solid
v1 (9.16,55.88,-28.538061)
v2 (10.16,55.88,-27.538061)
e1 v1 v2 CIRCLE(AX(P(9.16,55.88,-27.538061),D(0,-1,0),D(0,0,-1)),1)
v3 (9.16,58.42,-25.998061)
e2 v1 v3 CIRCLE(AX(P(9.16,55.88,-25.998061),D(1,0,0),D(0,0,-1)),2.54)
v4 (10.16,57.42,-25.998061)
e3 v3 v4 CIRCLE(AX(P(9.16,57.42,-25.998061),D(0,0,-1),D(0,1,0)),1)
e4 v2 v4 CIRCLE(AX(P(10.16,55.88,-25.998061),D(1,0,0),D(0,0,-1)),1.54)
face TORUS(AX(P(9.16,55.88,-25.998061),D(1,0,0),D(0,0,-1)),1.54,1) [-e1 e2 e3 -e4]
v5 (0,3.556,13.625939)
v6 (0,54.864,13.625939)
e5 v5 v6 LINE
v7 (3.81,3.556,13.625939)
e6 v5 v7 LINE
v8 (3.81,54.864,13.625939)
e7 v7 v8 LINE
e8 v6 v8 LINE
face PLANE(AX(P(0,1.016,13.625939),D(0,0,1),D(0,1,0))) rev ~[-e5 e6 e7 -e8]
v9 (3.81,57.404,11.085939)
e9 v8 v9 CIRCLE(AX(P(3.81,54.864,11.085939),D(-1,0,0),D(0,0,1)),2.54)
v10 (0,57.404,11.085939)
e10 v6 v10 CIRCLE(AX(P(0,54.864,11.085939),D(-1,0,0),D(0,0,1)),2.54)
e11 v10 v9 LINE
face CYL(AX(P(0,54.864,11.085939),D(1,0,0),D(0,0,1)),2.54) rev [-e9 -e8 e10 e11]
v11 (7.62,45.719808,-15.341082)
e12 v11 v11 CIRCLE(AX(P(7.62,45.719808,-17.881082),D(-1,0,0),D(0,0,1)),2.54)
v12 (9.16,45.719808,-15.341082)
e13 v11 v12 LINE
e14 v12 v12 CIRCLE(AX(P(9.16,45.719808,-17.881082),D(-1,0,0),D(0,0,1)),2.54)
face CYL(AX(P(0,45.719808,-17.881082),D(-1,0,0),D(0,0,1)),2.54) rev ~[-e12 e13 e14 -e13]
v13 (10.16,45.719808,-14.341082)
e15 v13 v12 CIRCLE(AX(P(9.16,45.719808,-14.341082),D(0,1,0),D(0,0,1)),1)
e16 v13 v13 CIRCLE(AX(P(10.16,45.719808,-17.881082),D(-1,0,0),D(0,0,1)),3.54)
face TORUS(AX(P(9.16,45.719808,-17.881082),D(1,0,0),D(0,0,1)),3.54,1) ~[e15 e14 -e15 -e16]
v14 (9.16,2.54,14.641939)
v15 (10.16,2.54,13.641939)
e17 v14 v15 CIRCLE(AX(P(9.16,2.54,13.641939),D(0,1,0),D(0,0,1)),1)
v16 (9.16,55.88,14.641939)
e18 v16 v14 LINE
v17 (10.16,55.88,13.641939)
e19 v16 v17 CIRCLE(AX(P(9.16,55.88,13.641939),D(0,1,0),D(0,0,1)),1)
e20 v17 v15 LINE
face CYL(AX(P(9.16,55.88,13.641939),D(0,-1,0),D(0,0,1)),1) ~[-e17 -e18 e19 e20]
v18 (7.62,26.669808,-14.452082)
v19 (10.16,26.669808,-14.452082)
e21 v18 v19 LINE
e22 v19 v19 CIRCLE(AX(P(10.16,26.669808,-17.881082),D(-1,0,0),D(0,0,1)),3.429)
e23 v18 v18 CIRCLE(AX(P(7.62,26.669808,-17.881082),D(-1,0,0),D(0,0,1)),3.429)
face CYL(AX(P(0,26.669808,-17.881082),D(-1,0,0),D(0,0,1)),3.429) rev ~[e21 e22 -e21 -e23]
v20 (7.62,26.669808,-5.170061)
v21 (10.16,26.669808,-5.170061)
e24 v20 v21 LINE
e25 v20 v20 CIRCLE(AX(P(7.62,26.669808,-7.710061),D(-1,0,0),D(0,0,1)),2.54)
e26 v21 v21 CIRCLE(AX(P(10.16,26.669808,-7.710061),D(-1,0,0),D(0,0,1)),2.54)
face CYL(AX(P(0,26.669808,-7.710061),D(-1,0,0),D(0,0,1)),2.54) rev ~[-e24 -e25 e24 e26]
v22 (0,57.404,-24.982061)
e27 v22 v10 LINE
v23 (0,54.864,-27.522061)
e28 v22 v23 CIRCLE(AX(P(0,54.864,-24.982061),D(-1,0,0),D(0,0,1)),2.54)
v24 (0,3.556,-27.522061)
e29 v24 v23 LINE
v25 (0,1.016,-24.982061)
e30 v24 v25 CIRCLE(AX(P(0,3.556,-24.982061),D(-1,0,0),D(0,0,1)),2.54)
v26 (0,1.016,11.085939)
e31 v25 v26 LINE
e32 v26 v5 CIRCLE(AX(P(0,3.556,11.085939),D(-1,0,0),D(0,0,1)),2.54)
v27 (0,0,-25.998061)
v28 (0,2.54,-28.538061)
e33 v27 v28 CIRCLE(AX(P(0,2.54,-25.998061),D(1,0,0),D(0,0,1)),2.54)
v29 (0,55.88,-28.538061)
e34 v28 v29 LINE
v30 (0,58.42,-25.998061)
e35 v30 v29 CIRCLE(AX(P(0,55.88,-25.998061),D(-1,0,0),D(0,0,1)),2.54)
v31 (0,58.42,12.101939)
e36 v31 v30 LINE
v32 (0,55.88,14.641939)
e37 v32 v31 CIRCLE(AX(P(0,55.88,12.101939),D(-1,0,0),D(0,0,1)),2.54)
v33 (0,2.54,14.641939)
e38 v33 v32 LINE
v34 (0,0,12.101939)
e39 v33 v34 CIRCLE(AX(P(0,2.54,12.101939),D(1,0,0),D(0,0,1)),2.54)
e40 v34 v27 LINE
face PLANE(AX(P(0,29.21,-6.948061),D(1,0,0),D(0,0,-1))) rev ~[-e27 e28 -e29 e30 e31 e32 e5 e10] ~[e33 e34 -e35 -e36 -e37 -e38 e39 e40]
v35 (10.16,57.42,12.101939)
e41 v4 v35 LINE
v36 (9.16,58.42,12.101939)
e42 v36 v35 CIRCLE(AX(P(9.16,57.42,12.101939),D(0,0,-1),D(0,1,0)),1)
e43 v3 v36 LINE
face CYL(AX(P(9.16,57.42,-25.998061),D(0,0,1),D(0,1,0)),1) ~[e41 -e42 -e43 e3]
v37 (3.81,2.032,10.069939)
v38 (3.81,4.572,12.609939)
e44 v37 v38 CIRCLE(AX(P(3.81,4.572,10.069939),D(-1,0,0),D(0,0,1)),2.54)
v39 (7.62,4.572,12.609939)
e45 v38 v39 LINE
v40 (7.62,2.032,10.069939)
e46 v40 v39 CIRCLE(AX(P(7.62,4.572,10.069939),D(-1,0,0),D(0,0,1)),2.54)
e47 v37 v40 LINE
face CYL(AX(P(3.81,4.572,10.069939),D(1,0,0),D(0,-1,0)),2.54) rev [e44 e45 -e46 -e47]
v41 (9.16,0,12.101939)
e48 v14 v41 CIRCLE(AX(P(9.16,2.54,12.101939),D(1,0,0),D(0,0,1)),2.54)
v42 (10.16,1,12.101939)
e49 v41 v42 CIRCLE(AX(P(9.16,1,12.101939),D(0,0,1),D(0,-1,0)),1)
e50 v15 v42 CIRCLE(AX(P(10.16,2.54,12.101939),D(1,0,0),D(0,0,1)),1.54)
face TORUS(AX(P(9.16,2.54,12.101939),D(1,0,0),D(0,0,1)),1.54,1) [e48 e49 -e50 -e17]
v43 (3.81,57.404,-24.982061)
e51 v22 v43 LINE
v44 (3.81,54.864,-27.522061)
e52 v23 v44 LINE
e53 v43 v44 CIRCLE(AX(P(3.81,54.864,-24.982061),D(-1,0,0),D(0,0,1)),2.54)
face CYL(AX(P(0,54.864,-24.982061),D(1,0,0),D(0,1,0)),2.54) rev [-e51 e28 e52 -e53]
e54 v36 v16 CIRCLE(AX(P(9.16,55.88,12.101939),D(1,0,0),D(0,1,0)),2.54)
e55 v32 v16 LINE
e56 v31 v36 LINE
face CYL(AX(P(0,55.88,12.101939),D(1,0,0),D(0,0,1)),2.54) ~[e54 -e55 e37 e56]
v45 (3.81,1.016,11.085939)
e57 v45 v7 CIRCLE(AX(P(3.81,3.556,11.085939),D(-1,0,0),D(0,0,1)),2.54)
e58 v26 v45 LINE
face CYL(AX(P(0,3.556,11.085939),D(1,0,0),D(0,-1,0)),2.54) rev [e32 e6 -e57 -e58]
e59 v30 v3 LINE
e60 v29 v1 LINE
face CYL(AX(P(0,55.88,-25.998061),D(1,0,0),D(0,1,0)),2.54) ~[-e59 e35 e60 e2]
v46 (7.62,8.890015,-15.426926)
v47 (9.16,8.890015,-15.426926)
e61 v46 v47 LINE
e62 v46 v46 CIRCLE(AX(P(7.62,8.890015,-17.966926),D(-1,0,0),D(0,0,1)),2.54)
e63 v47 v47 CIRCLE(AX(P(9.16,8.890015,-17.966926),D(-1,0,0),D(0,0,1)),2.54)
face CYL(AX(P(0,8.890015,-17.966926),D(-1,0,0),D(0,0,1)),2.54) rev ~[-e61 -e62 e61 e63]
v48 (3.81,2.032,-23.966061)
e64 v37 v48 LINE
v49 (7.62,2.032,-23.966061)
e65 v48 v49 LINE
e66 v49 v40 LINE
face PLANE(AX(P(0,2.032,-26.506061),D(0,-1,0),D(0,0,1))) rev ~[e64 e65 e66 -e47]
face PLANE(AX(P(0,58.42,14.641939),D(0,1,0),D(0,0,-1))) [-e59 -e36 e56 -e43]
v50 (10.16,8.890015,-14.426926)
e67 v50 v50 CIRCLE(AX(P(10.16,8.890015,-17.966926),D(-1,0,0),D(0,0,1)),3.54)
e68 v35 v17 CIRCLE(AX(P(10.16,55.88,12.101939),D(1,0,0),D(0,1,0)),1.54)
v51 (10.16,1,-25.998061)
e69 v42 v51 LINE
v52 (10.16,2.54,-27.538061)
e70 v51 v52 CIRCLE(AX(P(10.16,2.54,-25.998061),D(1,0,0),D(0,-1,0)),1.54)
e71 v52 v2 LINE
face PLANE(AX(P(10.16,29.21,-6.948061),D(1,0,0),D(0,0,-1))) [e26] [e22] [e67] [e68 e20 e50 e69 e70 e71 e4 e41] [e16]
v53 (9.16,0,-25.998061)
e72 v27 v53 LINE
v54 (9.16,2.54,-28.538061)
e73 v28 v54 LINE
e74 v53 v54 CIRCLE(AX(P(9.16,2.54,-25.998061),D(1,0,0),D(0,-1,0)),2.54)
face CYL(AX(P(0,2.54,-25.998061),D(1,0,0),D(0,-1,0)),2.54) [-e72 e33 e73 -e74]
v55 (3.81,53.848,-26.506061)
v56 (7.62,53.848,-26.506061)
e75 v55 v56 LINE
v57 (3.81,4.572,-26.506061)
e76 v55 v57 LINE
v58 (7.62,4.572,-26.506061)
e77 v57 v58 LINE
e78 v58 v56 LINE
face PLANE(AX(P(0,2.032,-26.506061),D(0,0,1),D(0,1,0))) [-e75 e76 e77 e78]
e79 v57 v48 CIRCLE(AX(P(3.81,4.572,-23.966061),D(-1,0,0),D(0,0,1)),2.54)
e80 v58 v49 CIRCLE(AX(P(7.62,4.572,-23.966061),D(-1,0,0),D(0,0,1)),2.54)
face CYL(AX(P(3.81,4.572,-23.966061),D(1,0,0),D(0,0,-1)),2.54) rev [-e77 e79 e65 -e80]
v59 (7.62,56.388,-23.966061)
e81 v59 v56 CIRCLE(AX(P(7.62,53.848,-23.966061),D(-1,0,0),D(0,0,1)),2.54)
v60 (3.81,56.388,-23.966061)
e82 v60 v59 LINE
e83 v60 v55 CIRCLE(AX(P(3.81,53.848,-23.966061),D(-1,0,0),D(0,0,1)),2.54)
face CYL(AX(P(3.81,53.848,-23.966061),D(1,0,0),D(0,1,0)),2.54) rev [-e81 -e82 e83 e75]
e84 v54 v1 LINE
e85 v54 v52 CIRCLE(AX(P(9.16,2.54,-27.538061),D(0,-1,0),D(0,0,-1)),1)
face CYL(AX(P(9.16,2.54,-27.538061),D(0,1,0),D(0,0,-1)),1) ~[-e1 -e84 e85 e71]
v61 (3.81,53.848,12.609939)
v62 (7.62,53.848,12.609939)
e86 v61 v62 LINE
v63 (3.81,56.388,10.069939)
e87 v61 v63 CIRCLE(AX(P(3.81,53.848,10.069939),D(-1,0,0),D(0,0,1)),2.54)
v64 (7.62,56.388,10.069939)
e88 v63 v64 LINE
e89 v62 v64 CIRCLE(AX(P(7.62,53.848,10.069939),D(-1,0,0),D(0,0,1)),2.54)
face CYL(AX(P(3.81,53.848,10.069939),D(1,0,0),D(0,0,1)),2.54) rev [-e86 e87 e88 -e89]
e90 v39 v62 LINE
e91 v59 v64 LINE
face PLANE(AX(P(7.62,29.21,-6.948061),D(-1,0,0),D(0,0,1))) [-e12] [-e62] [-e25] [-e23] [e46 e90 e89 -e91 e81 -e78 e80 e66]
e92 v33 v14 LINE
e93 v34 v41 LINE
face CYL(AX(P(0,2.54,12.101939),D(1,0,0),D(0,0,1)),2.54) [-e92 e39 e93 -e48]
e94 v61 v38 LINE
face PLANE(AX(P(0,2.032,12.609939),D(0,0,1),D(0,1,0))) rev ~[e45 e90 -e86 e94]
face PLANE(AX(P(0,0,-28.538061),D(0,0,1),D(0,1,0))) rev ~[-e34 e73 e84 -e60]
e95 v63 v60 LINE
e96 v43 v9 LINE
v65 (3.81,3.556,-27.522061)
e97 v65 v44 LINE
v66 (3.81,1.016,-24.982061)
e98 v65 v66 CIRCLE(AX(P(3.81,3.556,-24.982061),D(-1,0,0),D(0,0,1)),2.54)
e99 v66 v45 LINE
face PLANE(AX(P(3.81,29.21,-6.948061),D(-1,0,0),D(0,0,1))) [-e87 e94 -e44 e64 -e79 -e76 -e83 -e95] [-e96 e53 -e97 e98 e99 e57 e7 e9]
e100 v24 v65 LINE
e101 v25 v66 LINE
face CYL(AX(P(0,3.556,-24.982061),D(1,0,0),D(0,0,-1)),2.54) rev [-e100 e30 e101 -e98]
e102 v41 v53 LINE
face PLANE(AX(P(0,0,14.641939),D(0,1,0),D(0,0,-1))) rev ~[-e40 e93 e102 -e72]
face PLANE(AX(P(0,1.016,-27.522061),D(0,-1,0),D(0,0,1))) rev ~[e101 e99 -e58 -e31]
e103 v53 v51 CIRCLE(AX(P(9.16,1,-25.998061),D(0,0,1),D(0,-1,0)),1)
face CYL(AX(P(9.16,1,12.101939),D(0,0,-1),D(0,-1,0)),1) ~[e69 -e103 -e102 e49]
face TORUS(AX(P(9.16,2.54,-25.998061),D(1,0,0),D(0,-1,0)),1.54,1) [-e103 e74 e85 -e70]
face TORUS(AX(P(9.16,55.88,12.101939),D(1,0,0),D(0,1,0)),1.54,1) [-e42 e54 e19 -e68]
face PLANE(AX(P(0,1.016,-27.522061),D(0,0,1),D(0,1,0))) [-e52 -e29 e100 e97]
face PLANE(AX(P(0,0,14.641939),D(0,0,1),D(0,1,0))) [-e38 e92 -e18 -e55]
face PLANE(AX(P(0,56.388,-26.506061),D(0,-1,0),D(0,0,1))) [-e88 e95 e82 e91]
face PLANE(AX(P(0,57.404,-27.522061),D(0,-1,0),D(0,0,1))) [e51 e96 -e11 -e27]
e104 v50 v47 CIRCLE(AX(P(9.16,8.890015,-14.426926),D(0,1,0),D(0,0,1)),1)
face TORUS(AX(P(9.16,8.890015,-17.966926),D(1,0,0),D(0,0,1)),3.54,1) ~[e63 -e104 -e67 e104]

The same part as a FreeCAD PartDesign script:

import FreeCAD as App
import Part
import Sketcher
from FreeCAD import Vector
Q = App.Units.Quantity


def edges_at(feature, points):
    """Names of the edges that pass closest to the given points."""
    edges = feature.Shape.Edges
    near = lambda p: min(range(len(edges)), key=lambda i: edges[i].distToShape(Part.Vertex(*p))[0])
    return sorted({f"Edge{near(p) + 1}" for p in points})


def add_polygon(sketch, points):
    """Adds a closed chain of lines whose ends are joined by coincident constraints."""
    first, n = sketch.GeometryCount, len(points)
    for a, b in zip(points, points[1:] + points[:1]):
        sketch.addGeometry(Part.LineSegment(App.Vector(*a, 0), App.Vector(*b, 0)), False)
    for i in range(n):
        sketch.addConstraint(Sketcher.Constraint("Coincident", first + i, 2, first + (i + 1) % n, 1))

doc = App.newDocument("Part")
body = doc.addObject("PartDesign::Body", "Body")

# Sketch on YZ plane
sketch1 = body.newObject("Sketcher::SketchObject", "Sketch")
sketch1.AttachmentSupport = (doc.getObject("YZ_Plane"), [""])
sketch1.MapMode = "FlatFace"
add_polygon(sketch1, [(58, 15), (0, 15), (0, -29), (58, -29)])  # lines 0-3
sketch1.addConstraint([
    Sketcher.Constraint("Horizontal", 0),
    Sketcher.Constraint("Vertical", 1),
    Sketcher.Constraint("Horizontal", 2),
    Sketcher.Constraint("Vertical", 3),
    Sketcher.Constraint("PointOnObject", 0, 2, -2),
    Sketcher.Constraint("DistanceX", 0, 2, 0, 1, Q("2.3 in")),
    Sketcher.Constraint("DistanceY", 1, 2, 1, 1, Q("1.7 in")),
    Sketcher.Constraint("DistanceY", -1, 1, 0, 2, 14.641939),
])
pad1 = body.newObject("PartDesign::Pad", "Pad")
pad1.Profile = sketch1
pad1.Length = Q("0.4 in")

# Sketch on YZ plane
sketch2 = body.newObject("Sketcher::SketchObject", "Sketch001")
sketch2.AttachmentSupport = (doc.getObject("YZ_Plane"), [""])
sketch2.MapMode = "FlatFace"
sketch2.addGeometry([
    Part.Circle(Vector(8.9, -18, 0), Vector(0, 0, 1), 2.5),
    Part.Circle(Vector(45.7, -17.9, 0), Vector(0, 0, 1), 2.5),
    Part.Circle(Vector(26.7, -17.9, 0), Vector(0, 0, 1), 3.4),
    Part.Circle(Vector(26.7, -7.7, 0), Vector(0, 0, 1), 2.5),
], False)
sketch2.addConstraint([
    Sketcher.Constraint("Equal", 0, 1),
    Sketcher.Constraint("Equal", 1, 3),
    Sketcher.Constraint("Horizontal", 1, 3, 2, 3),
    Sketcher.Constraint("Vertical", 2, 3, 3, 3),
    Sketcher.Constraint("Diameter", 0, Q("0.2 in")),
    Sketcher.Constraint("Diameter", 2, Q("0.27 in")),
    Sketcher.Constraint("DistanceX", 2, 3, 1, 3, Q("0.75 in")),
    Sketcher.Constraint("DistanceY", 3, 3, -1, 1, 7.710061),
    Sketcher.Constraint("DistanceY", 2, 3, 3, 3, 10.171021),
    Sketcher.Constraint("DistanceX", -1, 1, 0, 3, 8.890015),
    Sketcher.Constraint("DistanceY", 0, 3, -1, 1, 17.966926),
    Sketcher.Constraint("DistanceX", -1, 1, 1, 3, 45.719808),
])
pocket1 = body.newObject("PartDesign::Pocket", "Pocket")
pocket1.Profile = sketch2
pocket1.Type = "ThroughAll"
pocket1.Reversed = True

# Sketch on YZ plane
sketch3 = body.newObject("Sketcher::SketchObject", "Sketch002")
sketch3.AttachmentSupport = (doc.getObject("YZ_Plane"), [""])
sketch3.MapMode = "FlatFace"
add_polygon(sketch3, [(56, -27), (2, -27), (2, 13), (56, 13)])  # lines 0-3
sketch3.addConstraint([
    Sketcher.Constraint("Horizontal", 0),
    Sketcher.Constraint("Vertical", 1),
    Sketcher.Constraint("Horizontal", 2),
    Sketcher.Constraint("Vertical", 3),
    Sketcher.Constraint("DistanceX", 0, 2, 0, 1, Q("2.14 in")),
    Sketcher.Constraint("DistanceY", 1, 1, 1, 2, Q("1.54 in")),
    Sketcher.Constraint("DistanceX", -1, 1, 0, 2, Q("0.08 in")),
    Sketcher.Constraint("DistanceY", 0, 2, -1, 1, 26.506061),
])
pocket2 = body.newObject("PartDesign::Pocket", "Pocket001")
pocket2.Profile = sketch3
pocket2.Length = Q("0.3 in")
pocket2.Reversed = True

# Sketch on YZ plane
sketch4 = body.newObject("Sketcher::SketchObject", "Sketch003")
sketch4.AttachmentSupport = (doc.getObject("YZ_Plane"), [""])
sketch4.MapMode = "FlatFace"
add_polygon(sketch4, [(57, -28), (1, -28), (1, 14), (57, 14)])  # lines 0-3
sketch4.addConstraint([
    Sketcher.Constraint("Horizontal", 0),
    Sketcher.Constraint("Vertical", 1),
    Sketcher.Constraint("Horizontal", 2),
    Sketcher.Constraint("Vertical", 3),
    Sketcher.Constraint("DistanceX", 0, 2, 0, 1, Q("2.22 in")),
    Sketcher.Constraint("DistanceY", 1, 1, 1, 2, Q("1.62 in")),
    Sketcher.Constraint("DistanceX", -1, 1, 0, 2, Q("0.04 in")),
    Sketcher.Constraint("DistanceY", 0, 2, -1, 1, 27.522061),
])
pocket3 = body.newObject("PartDesign::Pocket", "Pocket002")
pocket3.Profile = sketch4
pocket3.Length = Q("0.15 in")
pocket3.Reversed = True
doc.recompute()

fillet = body.newObject("PartDesign::Fillet", "Fillet")
fillet.Base = (pocket3, edges_at(pocket3, [(5.715, 2.032, -26.506), (1.905, 1.016, -27.522)]))
fillet.Radius = Q("0.1 in")
doc.recompute()

fillet2 = body.newObject("PartDesign::Fillet", "Fillet001")
fillet2.Base = (fillet, edges_at(fillet, [(5.715, 2.032, 12.61), (1.905, 1.016, 13.626)]))
fillet2.Radius = Q("0.1 in")
doc.recompute()

fillet3 = body.newObject("PartDesign::Fillet", "Fillet002")
fillet3.Base = (fillet2, edges_at(fillet2, [(5.715, 56.388, 12.61), (1.905, 57.404, 13.626)]))
fillet3.Radius = Q("0.1 in")
doc.recompute()

fillet4 = body.newObject("PartDesign::Fillet", "Fillet003")
fillet4.Base = (fillet3, edges_at(fillet3, [(5.715, 56.388, -26.506), (1.905, 57.404, -27.522)]))
fillet4.Radius = Q("0.1 in")
doc.recompute()

fillet5 = body.newObject("PartDesign::Fillet", "Fillet004")
fillet5.Base = (fillet4, edges_at(fillet4, [
    (5.08, 58.42, 14.642),
    (5.08, 58.42, -28.538),
    (5.08, 0, -28.538),
    (5.08, 0, 14.642),
]))
fillet5.Radius = Q("0.1 in")
doc.recompute()

fillet6 = body.newObject("PartDesign::Fillet", "Fillet005")
fillet6.Base = (fillet5, edges_at(fillet5, [
    (10.16, 29.21, -28.538),
    (10.16, 0, -6.948),
    (10.16, 29.21, 14.642),
    (10.16, 58.42, -6.948),
    (10.16, 57.676, 13.898),
    (10.16, 57.676, -27.794),
    (10.16, 0.744, 13.898),
    (10.16, 0.744, -27.794),
]))
fillet6.Radius = 1
doc.recompute()

fillet7 = body.newObject("PartDesign::Fillet", "Fillet006")
fillet7.Base = (fillet6, edges_at(fillet6, [(10.16, 45.72, -20.421)]))
fillet7.Radius = 1
doc.recompute()

fillet8 = body.newObject("PartDesign::Fillet", "Fillet007")
fillet8.Base = (fillet7, edges_at(fillet7, [(10.16, 8.89, -20.507)]))
fillet8.Radius = 1

doc.recompute()
